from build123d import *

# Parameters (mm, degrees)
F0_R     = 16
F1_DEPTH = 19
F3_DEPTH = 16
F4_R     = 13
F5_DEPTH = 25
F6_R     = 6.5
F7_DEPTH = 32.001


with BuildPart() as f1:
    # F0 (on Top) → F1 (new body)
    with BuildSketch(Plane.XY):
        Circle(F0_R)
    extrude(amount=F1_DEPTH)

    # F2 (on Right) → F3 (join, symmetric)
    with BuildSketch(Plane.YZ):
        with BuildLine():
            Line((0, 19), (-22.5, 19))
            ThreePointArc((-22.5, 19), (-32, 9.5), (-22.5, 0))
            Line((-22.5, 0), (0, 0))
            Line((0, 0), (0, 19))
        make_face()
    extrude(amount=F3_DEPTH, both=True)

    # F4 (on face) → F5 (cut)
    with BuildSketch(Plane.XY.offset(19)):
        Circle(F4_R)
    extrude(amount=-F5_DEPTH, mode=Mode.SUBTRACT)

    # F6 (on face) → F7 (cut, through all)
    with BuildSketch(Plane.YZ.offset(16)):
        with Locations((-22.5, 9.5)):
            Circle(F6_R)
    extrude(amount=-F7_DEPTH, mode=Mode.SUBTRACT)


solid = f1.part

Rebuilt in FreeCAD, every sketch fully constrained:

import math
import FreeCAD as App
import Part
import Sketcher

V = App.Vector

doc = App.newDocument("Part")
body = doc.addObject("PartDesign::Body", "Body")

sketch1 = doc.addObject("Sketcher::SketchObject", "Sketch")
body.addObject(sketch1)
sketch1.AttachmentSupport = (doc.XY_Plane, [""])
sketch1.MapMode = "FlatFace"
sketch1.addGeometry(Part.Circle(V(0, 0, 0), V(0, 0, 1), 16), False)
sketch1.addConstraint(Sketcher.Constraint("Coincident", 0, 3, -1, 1))
sketch1.addConstraint(Sketcher.Constraint("Diameter", 0, 32.0))
pad1 = doc.addObject("PartDesign::Pad", "Pad")
body.addObject(pad1)
pad1.Profile = sketch1
pad1.Length = 19

sketch2 = doc.addObject("Sketcher::SketchObject", "Sketch001")
body.addObject(sketch2)
sketch2.AttachmentSupport = (doc.YZ_Plane, [""])
sketch2.MapMode = "FlatFace"
sketch2.addGeometry(Part.LineSegment(V(0, 19, 0), V(-22, 19, 0)), False)
sketch2.addGeometry(Part.ArcOfCircle(Part.Circle(V(-22, 10, 0), V(0, 0, 1), 10), math.radians(90), math.radians(270)), False)
sketch2.addGeometry(Part.LineSegment(V(-22, 0, 0), V(0, 0, 0)), False)
sketch2.addGeometry(Part.LineSegment(V(0, 0, 0), V(0, 19, 0)), False)
sketch2.addConstraint(Sketcher.Constraint("Tangent", 0, 2, 1, 1))
sketch2.addConstraint(Sketcher.Constraint("Tangent", 1, 2, 2, 1))
sketch2.addConstraint(Sketcher.Constraint("Coincident", 2, 2, 3, 1))
sketch2.addConstraint(Sketcher.Constraint("Coincident", 3, 2, 0, 1))
sketch2.addConstraint(Sketcher.Constraint("Horizontal", 0))
sketch2.addConstraint(Sketcher.Constraint("Horizontal", 2))
sketch2.addConstraint(Sketcher.Constraint("Vertical", 3))
sketch2.addConstraint(Sketcher.Constraint("Coincident", 2, 2, -1, 1))
sketch2.addConstraint(Sketcher.Constraint("Radius", 1, 9.5))
sketch2.addConstraint(Sketcher.Constraint("DistanceX", 0, 2, 0, 1, 22.5))
pad2 = doc.addObject("PartDesign::Pad", "Pad001")
body.addObject(pad2)
pad2.Profile = sketch2
pad2.Length = 32
pad2.Midplane = True

sketch3 = doc.addObject("Sketcher::SketchObject", "Sketch002")
body.addObject(sketch3)
sketch3.AttachmentSupport = (doc.XY_Plane, [""])
sketch3.MapMode = "FlatFace"
sketch3.AttachmentOffset = App.Placement(V(0, 0, 19), App.Rotation())
sketch3.addGeometry(Part.Circle(V(0, 0, 0), V(0, 0, 1), 13), False)
sketch3.addConstraint(Sketcher.Constraint("Coincident", 0, 3, -1, 1))
sketch3.addConstraint(Sketcher.Constraint("Diameter", 0, 26.0))
pocket1 = doc.addObject("PartDesign::Pocket", "Pocket")
body.addObject(pocket1)
pocket1.Profile = sketch3
pocket1.Length = 25

sketch4 = doc.addObject("Sketcher::SketchObject", "Sketch003")
body.addObject(sketch4)
sketch4.AttachmentSupport = (doc.YZ_Plane, [""])
sketch4.MapMode = "FlatFace"
sketch4.AttachmentOffset = App.Placement(V(0, 0, 16), App.Rotation())
sketch4.addGeometry(Part.Circle(V(-22, 10, 0), V(0, 0, 1), 6), False)
sketch4.addConstraint(Sketcher.Constraint("Diameter", 0, 13.0))
sketch4.addConstraint(Sketcher.Constraint("DistanceX", 0, 3, -1, 1, 22.5))
sketch4.addConstraint(Sketcher.Constraint("DistanceY", -1, 1, 0, 3, 9.5))
pocket2 = doc.addObject("PartDesign::Pocket", "Pocket001")
body.addObject(pocket2)
pocket2.Profile = sketch4
pocket2.Type = "ThroughAll"

doc.recompute()
